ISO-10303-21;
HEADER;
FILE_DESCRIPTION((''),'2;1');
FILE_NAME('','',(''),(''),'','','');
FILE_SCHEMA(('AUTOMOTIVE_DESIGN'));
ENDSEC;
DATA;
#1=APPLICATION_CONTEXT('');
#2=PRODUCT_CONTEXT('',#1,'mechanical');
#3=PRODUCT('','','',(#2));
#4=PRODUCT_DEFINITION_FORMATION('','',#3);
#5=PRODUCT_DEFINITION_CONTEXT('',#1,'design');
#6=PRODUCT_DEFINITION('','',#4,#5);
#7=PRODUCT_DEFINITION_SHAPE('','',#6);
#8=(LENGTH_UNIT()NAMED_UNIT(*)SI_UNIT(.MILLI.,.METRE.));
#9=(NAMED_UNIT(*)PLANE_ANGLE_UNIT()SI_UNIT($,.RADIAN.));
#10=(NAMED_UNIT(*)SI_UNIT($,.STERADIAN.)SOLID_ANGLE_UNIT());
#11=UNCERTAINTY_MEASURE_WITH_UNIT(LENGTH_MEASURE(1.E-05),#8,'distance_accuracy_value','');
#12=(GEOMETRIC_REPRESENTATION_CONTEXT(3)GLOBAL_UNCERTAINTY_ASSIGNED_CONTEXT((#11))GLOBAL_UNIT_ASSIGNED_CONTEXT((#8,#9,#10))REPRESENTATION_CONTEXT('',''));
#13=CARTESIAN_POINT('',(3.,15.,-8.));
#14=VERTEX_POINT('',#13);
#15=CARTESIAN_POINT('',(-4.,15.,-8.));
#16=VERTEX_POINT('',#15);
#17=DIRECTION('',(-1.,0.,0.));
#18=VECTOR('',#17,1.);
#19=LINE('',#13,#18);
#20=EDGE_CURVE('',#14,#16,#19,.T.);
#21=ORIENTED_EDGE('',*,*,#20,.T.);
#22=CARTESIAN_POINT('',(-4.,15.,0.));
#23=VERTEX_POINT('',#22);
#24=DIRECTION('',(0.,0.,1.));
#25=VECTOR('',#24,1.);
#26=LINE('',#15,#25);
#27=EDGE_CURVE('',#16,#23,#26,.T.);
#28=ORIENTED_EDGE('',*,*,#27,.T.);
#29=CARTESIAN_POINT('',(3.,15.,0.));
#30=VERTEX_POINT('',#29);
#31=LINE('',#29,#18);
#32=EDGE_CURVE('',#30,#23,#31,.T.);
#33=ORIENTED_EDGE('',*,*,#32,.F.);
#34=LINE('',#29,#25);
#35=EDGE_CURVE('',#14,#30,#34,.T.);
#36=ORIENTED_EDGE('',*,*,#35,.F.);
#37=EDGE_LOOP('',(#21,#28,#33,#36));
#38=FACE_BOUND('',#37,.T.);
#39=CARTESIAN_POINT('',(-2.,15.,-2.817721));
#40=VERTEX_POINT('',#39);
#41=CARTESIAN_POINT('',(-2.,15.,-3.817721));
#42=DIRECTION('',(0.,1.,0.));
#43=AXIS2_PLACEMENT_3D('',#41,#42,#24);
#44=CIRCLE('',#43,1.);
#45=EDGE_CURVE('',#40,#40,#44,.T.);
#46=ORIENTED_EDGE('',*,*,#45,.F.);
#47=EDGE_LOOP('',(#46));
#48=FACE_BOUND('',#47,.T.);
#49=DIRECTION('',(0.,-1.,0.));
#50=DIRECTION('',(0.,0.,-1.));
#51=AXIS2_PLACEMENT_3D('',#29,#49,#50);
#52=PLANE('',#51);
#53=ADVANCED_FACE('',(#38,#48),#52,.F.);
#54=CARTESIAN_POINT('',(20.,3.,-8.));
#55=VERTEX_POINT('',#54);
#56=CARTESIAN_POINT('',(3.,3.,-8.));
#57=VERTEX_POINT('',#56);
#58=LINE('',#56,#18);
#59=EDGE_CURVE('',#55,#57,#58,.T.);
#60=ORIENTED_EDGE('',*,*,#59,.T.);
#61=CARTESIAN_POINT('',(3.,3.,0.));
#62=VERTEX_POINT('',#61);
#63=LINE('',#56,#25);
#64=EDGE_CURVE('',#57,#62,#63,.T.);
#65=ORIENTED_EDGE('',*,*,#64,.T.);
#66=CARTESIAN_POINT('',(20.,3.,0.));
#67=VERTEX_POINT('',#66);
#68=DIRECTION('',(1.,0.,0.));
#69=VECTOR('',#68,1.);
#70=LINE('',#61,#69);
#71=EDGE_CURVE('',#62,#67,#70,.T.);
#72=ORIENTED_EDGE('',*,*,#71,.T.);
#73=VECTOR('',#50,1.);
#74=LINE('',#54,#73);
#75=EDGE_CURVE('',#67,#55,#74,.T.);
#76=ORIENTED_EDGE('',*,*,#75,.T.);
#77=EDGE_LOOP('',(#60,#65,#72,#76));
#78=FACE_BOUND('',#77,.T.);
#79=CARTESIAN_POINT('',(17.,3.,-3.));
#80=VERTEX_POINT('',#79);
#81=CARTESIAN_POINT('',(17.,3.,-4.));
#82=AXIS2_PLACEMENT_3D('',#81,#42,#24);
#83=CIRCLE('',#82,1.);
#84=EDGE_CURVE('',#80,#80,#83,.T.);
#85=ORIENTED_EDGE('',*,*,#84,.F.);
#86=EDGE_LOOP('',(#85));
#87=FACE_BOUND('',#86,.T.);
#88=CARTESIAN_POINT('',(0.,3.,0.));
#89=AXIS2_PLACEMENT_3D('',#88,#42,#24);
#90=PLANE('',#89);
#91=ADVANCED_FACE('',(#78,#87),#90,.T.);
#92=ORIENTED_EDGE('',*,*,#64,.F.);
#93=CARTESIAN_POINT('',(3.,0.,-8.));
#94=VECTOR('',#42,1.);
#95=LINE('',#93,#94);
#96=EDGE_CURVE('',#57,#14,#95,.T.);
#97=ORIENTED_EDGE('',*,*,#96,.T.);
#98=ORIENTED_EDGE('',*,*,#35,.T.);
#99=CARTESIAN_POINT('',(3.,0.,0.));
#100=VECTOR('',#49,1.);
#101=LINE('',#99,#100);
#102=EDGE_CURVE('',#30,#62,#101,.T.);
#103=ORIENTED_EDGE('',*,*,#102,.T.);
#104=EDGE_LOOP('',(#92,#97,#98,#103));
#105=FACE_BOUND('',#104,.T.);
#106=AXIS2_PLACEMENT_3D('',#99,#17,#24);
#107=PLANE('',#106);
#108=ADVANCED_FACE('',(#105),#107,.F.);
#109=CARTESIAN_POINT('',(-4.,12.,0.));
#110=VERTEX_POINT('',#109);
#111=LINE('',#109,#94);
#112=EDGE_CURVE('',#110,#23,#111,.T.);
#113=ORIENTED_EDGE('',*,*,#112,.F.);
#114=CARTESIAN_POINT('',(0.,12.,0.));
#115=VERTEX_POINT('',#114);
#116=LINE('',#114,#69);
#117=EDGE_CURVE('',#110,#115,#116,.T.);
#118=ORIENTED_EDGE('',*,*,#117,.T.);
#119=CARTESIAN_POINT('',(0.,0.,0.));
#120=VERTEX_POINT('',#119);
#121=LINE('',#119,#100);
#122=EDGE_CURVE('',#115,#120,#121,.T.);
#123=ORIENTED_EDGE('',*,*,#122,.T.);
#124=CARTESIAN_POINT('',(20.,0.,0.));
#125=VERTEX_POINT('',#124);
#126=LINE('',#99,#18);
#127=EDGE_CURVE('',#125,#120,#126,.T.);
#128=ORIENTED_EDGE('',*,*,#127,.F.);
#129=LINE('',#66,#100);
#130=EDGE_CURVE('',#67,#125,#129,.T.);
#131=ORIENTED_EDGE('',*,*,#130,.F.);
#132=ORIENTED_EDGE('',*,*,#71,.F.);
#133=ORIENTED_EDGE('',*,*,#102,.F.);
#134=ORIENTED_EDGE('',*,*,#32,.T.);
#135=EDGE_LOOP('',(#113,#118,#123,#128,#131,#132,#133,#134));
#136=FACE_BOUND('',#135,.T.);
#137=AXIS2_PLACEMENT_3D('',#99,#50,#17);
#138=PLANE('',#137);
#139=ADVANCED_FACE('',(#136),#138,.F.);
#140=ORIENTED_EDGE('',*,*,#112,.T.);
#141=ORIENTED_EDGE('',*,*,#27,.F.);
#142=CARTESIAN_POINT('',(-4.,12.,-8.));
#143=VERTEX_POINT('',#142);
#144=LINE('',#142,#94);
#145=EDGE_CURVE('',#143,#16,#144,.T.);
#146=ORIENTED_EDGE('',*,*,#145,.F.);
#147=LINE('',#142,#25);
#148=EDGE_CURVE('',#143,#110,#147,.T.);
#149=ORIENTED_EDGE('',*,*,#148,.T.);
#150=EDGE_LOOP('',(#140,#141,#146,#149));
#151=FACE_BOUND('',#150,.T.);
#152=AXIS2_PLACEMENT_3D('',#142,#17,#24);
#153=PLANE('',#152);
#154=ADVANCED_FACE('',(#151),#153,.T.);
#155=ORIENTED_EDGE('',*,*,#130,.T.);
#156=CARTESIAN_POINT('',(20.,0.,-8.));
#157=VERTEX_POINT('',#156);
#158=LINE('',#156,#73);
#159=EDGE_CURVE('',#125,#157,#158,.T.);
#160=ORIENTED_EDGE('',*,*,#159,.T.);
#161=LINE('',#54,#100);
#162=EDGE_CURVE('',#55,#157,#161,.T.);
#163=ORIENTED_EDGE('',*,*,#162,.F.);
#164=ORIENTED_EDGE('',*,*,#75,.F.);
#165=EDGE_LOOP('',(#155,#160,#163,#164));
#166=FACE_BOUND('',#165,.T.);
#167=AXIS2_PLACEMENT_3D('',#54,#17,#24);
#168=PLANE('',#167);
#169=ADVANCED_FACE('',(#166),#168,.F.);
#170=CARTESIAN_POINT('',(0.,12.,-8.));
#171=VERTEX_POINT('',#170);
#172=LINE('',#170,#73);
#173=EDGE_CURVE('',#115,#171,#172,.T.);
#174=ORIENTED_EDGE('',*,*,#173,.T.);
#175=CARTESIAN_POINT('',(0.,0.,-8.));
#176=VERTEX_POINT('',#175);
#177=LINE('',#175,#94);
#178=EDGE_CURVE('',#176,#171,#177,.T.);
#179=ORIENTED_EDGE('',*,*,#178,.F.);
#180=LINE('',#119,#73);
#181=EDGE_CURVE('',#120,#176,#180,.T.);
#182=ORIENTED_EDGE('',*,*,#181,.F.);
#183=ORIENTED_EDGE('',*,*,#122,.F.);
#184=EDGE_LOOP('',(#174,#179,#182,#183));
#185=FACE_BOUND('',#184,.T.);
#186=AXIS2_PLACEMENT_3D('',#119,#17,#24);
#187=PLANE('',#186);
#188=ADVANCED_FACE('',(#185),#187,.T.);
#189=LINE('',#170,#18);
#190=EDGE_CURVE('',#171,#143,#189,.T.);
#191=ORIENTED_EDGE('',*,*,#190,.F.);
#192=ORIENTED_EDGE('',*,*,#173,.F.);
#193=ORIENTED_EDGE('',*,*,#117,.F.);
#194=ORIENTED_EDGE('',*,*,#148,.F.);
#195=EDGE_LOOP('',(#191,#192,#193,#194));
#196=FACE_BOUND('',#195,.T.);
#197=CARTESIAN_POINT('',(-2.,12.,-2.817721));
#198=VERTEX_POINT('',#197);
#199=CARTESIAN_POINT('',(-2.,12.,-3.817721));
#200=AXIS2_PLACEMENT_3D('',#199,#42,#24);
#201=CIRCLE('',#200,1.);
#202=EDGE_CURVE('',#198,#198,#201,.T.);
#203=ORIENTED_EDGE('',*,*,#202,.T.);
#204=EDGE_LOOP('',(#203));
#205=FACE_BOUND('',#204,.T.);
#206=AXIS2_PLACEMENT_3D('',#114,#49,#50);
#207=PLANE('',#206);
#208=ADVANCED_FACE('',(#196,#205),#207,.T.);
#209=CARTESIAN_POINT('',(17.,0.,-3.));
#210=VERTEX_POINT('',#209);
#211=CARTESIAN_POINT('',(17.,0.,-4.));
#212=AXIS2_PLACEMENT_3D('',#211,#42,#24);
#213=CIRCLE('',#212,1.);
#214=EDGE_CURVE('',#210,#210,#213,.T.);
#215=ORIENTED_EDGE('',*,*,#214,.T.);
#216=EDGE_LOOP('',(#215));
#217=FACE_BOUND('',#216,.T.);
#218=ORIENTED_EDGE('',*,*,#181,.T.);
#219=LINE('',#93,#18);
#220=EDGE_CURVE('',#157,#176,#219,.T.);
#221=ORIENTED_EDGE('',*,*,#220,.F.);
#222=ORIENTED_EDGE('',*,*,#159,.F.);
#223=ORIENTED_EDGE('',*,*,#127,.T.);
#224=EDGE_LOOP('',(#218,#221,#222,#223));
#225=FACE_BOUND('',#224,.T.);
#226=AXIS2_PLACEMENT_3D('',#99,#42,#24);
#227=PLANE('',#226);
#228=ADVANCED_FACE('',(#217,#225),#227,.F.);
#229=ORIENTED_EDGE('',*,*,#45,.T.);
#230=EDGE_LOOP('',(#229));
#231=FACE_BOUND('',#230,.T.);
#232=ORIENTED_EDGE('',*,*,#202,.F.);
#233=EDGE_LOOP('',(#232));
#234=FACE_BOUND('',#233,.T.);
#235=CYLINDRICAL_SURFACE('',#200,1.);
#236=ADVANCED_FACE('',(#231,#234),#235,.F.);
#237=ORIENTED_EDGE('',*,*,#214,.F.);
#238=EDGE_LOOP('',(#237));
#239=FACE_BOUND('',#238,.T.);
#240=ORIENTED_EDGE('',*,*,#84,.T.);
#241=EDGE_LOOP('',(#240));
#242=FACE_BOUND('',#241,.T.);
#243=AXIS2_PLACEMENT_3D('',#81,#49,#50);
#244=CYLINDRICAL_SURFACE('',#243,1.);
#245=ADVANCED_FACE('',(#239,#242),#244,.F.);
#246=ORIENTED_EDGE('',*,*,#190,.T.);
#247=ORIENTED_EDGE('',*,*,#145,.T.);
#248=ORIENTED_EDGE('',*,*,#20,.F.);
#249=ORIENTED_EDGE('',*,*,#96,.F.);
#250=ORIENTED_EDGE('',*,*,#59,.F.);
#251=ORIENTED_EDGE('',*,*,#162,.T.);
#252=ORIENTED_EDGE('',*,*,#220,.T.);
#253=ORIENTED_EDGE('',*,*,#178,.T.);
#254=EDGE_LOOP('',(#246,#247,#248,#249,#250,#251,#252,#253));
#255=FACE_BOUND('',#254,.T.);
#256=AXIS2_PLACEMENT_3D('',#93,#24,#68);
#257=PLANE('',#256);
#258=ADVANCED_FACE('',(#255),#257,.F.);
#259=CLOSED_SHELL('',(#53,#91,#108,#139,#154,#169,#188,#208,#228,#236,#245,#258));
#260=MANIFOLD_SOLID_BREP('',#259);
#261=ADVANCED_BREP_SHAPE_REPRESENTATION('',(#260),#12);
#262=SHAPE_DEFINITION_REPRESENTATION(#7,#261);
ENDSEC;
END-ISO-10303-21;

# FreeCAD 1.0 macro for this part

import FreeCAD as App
import Part
import Sketcher

V = App.Vector


def add_polygon(sketch, points):
    """Adds a closed chain of lines whose ends are joined by coincident constraints."""
    first, n = sketch.GeometryCount, len(points)
    for a, b in zip(points, points[1:] + points[:1]):
        sketch.addGeometry(Part.LineSegment(App.Vector(*a, 0), App.Vector(*b, 0)), False)
    for i in range(n):
        sketch.addConstraint(Sketcher.Constraint("Coincident", first + i, 2, first + (i + 1) % n, 1))

doc = App.newDocument("Part")
body = doc.addObject("PartDesign::Body", "Body")

sketch1 = body.newObject("Sketcher::SketchObject", "Sketch")
sketch1.AttachmentSupport = (doc.getObject("YZ_Plane"), [""])
sketch1.MapMode = "FlatFace"
add_polygon(sketch1, [(15, 0), (0, 0), (0, -8), (15, -8)])
sketch1.addConstraint([
    Sketcher.Constraint("Horizontal", 0),
    Sketcher.Constraint("Vertical", 1),
    Sketcher.Constraint("Horizontal", 2),
    Sketcher.Constraint("Vertical", 3),
    Sketcher.Constraint("Coincident", 0, 2, -1, 1),
    Sketcher.Constraint("DistanceX", 0, 2, 0, 1, 15.0),
    Sketcher.Constraint("DistanceY", 1, 2, 1, 1, 8.0),
])
pad1 = body.newObject("PartDesign::Pad", "Pad")
pad1.Profile = sketch1
pad1.Length = 3

sketch2 = body.newObject("Sketcher::SketchObject", "Sketch001")
sketch2.AttachmentSupport = (doc.getObject("XZ_Plane"), [""])
sketch2.MapMode = "FlatFace"
add_polygon(sketch2, [(3, -8), (3, 0), (20, 0), (20, -8)])
sketch2.addGeometry(Part.Circle(V(17, -4, 0), V(0, 0, 1), 1), False)
sketch2.addConstraint([
    Sketcher.Constraint("Vertical", 0),
    Sketcher.Constraint("Horizontal", 1),
    Sketcher.Constraint("Vertical", 2),
    Sketcher.Constraint("Horizontal", 3),
    Sketcher.Constraint("PointOnObject", 0, 2, -1),
    Sketcher.Constraint("Diameter", 4, 2.0),
    Sketcher.Constraint("DistanceX", 1, 1, 1, 2, 17.0),
    Sketcher.Constraint("DistanceY", 0, 1, 0, 2, 8.0),
    Sketcher.Constraint("DistanceX", -1, 1, 4, 3, 17.0),
    Sketcher.Constraint("DistanceY", 4, 3, -1, 1, 4.0),
    Sketcher.Constraint("DistanceX", -1, 1, 0, 2, 3.0),
])
pad2 = body.newObject("PartDesign::Pad", "Pad001")
pad2.Profile = sketch2
pad2.Length = 3
pad2.Reversed = True

sketch3 = body.newObject("Sketcher::SketchObject", "Sketch002")
sketch3.AttachmentSupport = (doc.getObject("XZ_Plane"), [""])
sketch3.MapMode = "FlatFace"
sketch3.AttachmentOffset = App.Placement(V(0, 0, -15), App.Rotation())
add_polygon(sketch3, [(-4, -8), (-4, 0), (0, 0), (0, -8)])
sketch3.addGeometry(Part.Circle(V(-2, -3.817721, 0), V(0, 0, 1), 1), False)
sketch3.addConstraint([
    Sketcher.Constraint("Vertical", 0),
    Sketcher.Constraint("Horizontal", 1),
    Sketcher.Constraint("Vertical", 2),
    Sketcher.Constraint("Horizontal", 3),
    Sketcher.Constraint("Coincident", 1, 2, -1, 1),
    Sketcher.Constraint("Diameter", 4, 2.0),
    Sketcher.Constraint("DistanceX", 1, 1, 1, 2, 4.0),
    Sketcher.Constraint("DistanceY", 0, 1, 0, 2, 8.0),
    Sketcher.Constraint("DistanceX", 4, 3, -1, 1, 2.0),
    Sketcher.Constraint("DistanceY", 4, 3, -1, 1, 3.817721),
])
pad3 = body.newObject("PartDesign::Pad", "Pad002")
pad3.Profile = sketch3
pad3.Length = 3

doc.recompute()
